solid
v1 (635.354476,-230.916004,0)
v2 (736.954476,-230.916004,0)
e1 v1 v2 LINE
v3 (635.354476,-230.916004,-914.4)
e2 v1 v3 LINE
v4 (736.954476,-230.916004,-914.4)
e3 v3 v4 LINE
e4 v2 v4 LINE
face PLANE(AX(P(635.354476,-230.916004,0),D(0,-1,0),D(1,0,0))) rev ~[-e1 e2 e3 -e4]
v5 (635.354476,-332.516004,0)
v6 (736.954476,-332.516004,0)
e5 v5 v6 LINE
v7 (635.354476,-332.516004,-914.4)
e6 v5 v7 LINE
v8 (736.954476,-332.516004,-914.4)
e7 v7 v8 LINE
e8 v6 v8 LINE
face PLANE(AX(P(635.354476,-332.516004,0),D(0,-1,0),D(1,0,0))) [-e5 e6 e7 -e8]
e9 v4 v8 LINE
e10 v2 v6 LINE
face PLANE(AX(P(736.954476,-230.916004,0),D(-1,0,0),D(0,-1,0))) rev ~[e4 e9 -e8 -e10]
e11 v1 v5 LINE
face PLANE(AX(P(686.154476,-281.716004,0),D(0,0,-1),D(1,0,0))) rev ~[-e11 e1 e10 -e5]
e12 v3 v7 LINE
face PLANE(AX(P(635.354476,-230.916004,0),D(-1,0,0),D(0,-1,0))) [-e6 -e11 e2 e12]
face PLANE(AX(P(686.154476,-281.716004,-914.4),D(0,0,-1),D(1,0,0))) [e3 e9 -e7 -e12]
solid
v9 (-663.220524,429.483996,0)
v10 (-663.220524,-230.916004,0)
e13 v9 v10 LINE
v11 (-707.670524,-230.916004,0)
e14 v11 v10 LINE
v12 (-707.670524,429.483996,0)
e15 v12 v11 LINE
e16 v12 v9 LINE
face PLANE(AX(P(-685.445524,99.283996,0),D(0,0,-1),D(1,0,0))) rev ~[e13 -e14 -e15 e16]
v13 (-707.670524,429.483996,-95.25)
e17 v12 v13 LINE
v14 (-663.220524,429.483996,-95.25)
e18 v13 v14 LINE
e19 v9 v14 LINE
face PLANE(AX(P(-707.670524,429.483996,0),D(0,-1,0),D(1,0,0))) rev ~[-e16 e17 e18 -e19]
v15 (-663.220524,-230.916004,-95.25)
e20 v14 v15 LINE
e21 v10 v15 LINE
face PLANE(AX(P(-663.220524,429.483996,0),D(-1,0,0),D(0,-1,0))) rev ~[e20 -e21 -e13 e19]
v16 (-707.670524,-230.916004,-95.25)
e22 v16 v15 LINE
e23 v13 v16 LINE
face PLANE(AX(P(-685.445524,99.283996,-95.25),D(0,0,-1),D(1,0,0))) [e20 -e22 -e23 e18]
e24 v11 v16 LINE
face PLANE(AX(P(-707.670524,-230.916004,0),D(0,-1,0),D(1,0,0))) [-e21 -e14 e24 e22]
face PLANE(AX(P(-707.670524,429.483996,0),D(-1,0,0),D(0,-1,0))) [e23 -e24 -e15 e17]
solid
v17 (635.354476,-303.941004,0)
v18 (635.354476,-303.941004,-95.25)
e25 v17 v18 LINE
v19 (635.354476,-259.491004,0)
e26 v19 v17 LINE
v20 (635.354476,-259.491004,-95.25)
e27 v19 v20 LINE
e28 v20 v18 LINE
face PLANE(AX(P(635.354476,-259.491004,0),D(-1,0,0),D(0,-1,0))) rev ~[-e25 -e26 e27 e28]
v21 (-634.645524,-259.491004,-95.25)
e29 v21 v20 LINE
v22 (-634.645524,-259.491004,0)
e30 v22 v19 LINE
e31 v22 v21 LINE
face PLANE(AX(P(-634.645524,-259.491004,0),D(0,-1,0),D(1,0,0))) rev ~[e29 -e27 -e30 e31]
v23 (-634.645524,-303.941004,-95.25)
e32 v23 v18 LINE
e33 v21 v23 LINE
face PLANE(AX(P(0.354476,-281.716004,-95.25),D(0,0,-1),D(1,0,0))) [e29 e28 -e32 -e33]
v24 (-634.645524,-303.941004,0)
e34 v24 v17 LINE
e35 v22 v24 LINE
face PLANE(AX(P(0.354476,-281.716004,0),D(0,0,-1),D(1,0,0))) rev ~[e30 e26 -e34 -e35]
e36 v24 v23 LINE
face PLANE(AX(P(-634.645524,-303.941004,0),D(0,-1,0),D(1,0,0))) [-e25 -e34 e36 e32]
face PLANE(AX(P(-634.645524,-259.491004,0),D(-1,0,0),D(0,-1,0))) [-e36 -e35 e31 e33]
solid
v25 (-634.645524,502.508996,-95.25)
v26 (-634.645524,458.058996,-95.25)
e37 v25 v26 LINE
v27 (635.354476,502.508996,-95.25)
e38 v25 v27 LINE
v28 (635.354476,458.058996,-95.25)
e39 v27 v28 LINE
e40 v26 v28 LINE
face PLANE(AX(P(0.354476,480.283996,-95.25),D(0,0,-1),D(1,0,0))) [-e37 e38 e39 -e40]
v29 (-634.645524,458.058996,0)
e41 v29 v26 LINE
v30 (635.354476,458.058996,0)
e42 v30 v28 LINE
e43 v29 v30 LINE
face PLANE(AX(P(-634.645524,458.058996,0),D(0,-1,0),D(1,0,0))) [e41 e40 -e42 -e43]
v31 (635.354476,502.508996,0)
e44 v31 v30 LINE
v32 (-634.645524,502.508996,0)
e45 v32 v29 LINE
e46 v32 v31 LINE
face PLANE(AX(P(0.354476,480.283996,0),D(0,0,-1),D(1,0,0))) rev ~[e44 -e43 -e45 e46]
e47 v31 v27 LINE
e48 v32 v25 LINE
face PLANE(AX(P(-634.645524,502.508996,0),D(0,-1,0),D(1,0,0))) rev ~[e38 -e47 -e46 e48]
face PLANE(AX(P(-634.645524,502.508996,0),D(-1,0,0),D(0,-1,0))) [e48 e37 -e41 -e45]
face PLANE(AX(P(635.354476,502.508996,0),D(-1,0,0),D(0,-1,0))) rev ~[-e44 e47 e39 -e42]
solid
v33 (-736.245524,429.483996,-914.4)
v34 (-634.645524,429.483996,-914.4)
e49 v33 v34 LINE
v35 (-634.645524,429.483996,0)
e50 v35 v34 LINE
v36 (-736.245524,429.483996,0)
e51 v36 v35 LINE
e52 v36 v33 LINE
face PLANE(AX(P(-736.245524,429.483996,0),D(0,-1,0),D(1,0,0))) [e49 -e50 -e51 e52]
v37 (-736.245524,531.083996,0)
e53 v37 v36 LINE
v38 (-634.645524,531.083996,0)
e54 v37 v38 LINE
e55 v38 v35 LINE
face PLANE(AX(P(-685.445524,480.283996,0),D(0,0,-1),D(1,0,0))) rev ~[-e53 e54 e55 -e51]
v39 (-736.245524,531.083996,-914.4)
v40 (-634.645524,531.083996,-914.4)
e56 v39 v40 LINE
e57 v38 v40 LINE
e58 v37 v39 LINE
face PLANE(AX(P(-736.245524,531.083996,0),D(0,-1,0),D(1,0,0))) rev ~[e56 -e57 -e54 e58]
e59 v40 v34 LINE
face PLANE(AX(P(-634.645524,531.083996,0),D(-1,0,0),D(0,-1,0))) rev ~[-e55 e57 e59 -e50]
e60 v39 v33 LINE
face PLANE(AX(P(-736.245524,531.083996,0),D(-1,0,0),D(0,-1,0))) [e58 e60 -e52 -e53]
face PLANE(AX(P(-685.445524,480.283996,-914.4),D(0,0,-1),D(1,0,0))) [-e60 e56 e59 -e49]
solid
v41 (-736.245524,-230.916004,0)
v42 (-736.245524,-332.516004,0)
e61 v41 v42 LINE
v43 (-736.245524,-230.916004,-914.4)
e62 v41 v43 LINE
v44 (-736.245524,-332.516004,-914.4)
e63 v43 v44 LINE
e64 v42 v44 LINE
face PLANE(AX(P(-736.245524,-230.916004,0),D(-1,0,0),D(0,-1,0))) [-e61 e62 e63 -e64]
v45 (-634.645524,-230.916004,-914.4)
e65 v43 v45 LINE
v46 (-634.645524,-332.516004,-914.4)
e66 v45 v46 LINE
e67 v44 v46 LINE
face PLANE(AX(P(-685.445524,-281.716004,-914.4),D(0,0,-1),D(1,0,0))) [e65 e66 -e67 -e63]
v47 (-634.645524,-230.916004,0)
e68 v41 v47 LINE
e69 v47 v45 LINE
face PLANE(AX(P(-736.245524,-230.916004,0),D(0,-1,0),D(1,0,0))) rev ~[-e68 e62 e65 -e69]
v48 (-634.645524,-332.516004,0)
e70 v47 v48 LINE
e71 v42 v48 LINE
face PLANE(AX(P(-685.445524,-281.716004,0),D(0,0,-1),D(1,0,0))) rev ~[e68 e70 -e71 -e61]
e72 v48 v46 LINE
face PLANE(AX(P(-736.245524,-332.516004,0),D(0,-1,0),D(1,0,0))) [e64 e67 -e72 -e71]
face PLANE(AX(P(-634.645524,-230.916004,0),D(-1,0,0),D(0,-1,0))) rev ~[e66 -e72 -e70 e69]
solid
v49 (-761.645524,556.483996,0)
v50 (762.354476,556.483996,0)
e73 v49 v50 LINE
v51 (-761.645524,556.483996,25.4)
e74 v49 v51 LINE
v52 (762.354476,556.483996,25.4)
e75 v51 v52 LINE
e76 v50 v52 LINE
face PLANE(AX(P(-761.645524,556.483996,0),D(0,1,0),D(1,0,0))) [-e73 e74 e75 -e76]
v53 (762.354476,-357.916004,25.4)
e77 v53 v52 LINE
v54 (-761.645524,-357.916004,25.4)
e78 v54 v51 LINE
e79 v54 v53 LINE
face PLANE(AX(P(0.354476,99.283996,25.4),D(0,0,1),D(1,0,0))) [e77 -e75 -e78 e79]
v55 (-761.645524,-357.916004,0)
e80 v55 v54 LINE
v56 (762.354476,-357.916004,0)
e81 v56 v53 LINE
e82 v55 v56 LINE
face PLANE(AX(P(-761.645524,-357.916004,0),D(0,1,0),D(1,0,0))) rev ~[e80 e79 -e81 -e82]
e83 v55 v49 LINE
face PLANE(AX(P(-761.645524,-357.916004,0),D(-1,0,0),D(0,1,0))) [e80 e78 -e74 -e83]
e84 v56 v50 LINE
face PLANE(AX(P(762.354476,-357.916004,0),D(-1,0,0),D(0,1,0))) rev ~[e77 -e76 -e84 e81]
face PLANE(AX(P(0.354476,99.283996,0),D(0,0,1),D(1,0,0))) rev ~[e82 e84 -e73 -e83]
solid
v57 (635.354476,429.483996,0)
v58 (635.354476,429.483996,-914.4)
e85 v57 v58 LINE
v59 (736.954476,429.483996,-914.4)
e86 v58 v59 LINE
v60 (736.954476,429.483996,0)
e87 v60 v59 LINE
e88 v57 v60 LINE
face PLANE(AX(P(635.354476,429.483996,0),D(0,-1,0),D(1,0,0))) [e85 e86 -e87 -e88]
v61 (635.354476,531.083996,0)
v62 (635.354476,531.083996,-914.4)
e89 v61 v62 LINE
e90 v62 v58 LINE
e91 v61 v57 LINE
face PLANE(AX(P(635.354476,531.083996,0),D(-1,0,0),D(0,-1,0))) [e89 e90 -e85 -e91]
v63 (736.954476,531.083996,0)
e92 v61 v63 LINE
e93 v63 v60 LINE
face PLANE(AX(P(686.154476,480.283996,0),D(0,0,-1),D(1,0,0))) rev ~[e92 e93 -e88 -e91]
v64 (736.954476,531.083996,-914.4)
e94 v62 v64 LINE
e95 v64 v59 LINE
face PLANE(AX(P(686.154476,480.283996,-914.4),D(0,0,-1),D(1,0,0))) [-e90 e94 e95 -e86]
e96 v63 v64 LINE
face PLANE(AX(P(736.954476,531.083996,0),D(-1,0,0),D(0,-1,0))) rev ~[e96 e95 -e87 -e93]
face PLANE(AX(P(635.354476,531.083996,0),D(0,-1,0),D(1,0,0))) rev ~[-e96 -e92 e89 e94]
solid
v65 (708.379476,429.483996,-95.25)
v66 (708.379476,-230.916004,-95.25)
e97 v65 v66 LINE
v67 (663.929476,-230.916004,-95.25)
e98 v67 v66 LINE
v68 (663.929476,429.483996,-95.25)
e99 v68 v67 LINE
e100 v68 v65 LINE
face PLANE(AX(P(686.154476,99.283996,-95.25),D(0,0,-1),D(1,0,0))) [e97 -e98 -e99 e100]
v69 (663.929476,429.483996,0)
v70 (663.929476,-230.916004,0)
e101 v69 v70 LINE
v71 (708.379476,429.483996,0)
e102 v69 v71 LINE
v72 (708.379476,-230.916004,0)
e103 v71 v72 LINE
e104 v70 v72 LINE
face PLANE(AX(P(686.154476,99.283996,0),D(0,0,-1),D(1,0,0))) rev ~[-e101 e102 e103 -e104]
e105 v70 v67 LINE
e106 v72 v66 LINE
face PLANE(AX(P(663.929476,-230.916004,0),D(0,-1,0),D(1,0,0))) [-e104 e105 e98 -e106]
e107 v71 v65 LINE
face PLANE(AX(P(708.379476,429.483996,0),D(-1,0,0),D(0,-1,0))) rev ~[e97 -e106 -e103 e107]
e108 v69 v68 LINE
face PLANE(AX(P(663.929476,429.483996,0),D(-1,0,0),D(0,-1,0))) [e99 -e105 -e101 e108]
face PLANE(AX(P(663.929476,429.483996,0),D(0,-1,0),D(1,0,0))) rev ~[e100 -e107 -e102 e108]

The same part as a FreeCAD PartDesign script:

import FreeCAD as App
import Part
import Sketcher
Q = App.Units.Quantity

doc = App.newDocument("Part")
body = doc.addObject("PartDesign::Body", "Body")

# Sketch on XY plane
sketch1 = body.newObject("Sketcher::SketchObject", "Sketch")
sketch1.AttachmentSupport = (doc.getObject("XY_Plane"), [""])
sketch1.MapMode = "FlatFace"
sketch1.addGeometry([
    Part.LineSegment(App.Vector(-762, 556, 0), App.Vector(-762, -358, 0)),
    Part.LineSegment(App.Vector(-762, -358, 0), App.Vector(762, -358, 0)),
    Part.LineSegment(App.Vector(762, -358, 0), App.Vector(762, 556, 0)),
    Part.LineSegment(App.Vector(762, 556, 0), App.Vector(-762, 556, 0)),
], False)
sketch1.addConstraint([
    Sketcher.Constraint("Coincident", 0, 2, 1, 1),
    Sketcher.Constraint("Coincident", 1, 2, 2, 1),
    Sketcher.Constraint("Coincident", 2, 2, 3, 1),
    Sketcher.Constraint("Coincident", 3, 2, 0, 1),
    Sketcher.Constraint("Vertical", 0),
    Sketcher.Constraint("Horizontal", 1),
    Sketcher.Constraint("Vertical", 2),
    Sketcher.Constraint("Horizontal", 3),
    Sketcher.Constraint("DistanceX", 1, 1, 1, 2, Q("60 in")),
    Sketcher.Constraint("DistanceY", 0, 2, 0, 1, Q("36 in")),
    Sketcher.Constraint("DistanceX", 0, 2, -1, 1, Q("761.645524 mm")),
    Sketcher.Constraint("DistanceY", 0, 2, -1, 1, Q("357.916004 mm")),
])
pad1 = body.newObject("PartDesign::Pad", "Pad")
pad1.Profile = sketch1
pad1.Length = Q("1 in")
body2 = doc.addObject("PartDesign::Body", "Body001")
body2.AllowCompound = True

# Sketch on XY plane
sketch2 = body2.newObject("Sketcher::SketchObject", "Sketch001")
sketch2.AttachmentSupport = (doc.getObject("XY_Plane001"), [""])
sketch2.MapMode = "FlatFace"
sketch2.addGeometry([
    Part.LineSegment(App.Vector(-736, -333, 0), App.Vector(-736, -231, 0)),  # 0
    Part.LineSegment(App.Vector(-736, -231, 0), App.Vector(-635, -231, 0)),  # 1
    Part.LineSegment(App.Vector(-635, -231, 0), App.Vector(-635, -333, 0)),  # 2
    Part.LineSegment(App.Vector(-635, -333, 0), App.Vector(-736, -333, 0)),  # 3
    Part.LineSegment(App.Vector(-736, 429, 0), App.Vector(-736, 531, 0)),  # 4
    Part.LineSegment(App.Vector(-736, 531, 0), App.Vector(-635, 531, 0)),  # 5
    Part.LineSegment(App.Vector(-635, 531, 0), App.Vector(-635, 429, 0)),  # 6
    Part.LineSegment(App.Vector(-635, 429, 0), App.Vector(-736, 429, 0)),  # 7
    Part.LineSegment(App.Vector(635, 429, 0), App.Vector(635, 531, 0)),  # 8
    Part.LineSegment(App.Vector(635, 531, 0), App.Vector(737, 531, 0)),  # 9
    Part.LineSegment(App.Vector(737, 531, 0), App.Vector(737, 429, 0)),  # 10
    Part.LineSegment(App.Vector(737, 429, 0), App.Vector(635, 429, 0)),  # 11
    Part.LineSegment(App.Vector(635, -333, 0), App.Vector(635, -231, 0)),  # 12
    Part.LineSegment(App.Vector(635, -231, 0), App.Vector(737, -231, 0)),  # 13
    Part.LineSegment(App.Vector(737, -231, 0), App.Vector(737, -333, 0)),  # 14
    Part.LineSegment(App.Vector(737, -333, 0), App.Vector(635, -333, 0)),  # 15
], False)
sketch2.addConstraint([
    Sketcher.Constraint("Coincident", 0, 2, 1, 1),
    Sketcher.Constraint("Coincident", 1, 2, 2, 1),
    Sketcher.Constraint("Coincident", 2, 2, 3, 1),
    Sketcher.Constraint("Coincident", 3, 2, 0, 1),
    Sketcher.Constraint("Coincident", 4, 2, 5, 1),
    Sketcher.Constraint("Coincident", 5, 2, 6, 1),
    Sketcher.Constraint("Coincident", 6, 2, 7, 1),
    Sketcher.Constraint("Coincident", 7, 2, 4, 1),
    Sketcher.Constraint("Coincident", 8, 2, 9, 1),
    Sketcher.Constraint("Coincident", 9, 2, 10, 1),
    Sketcher.Constraint("Coincident", 10, 2, 11, 1),
    Sketcher.Constraint("Coincident", 11, 2, 8, 1),
    Sketcher.Constraint("Coincident", 12, 2, 13, 1),
    Sketcher.Constraint("Coincident", 13, 2, 14, 1),
    Sketcher.Constraint("Coincident", 14, 2, 15, 1),
    Sketcher.Constraint("Coincident", 15, 2, 12, 1),
    Sketcher.Constraint("Vertical", 0),
    Sketcher.Constraint("Horizontal", 1),
    Sketcher.Constraint("Vertical", 2),
    Sketcher.Constraint("Horizontal", 3),
    Sketcher.Constraint("Vertical", 4),
    Sketcher.Constraint("Horizontal", 5),
    Sketcher.Constraint("Vertical", 6),
    Sketcher.Constraint("Horizontal", 7),
    Sketcher.Constraint("Vertical", 8),
    Sketcher.Constraint("Horizontal", 9),
    Sketcher.Constraint("Vertical", 10),
    Sketcher.Constraint("Horizontal", 11),
    Sketcher.Constraint("Vertical", 12),
    Sketcher.Constraint("Horizontal", 13),
    Sketcher.Constraint("Vertical", 14),
    Sketcher.Constraint("Horizontal", 15),
    Sketcher.Constraint("Horizontal", 5, 2, 8, 2),
    Sketcher.Constraint("Horizontal", 7, 2, 10, 2),
    Sketcher.Constraint("Horizontal", 1, 2, 12, 2),
    Sketcher.Constraint("Horizontal", 3, 2, 14, 2),
    Sketcher.Constraint("Vertical", 3, 2, 4, 2),
    Sketcher.Constraint("Vertical", 2, 2, 5, 2),
    Sketcher.Constraint("Vertical", 11, 2, 12, 2),
    Sketcher.Constraint("Vertical", 10, 2, 13, 2),
    Sketcher.Constraint("Equal", 7, 9),
    Sketcher.Constraint("Equal", 15, 0),
    Sketcher.Constraint("Equal", 2, 4),
    Sketcher.Constraint("DistanceX", 1, 1, 1, 2, Q("4 in")),
    Sketcher.Constraint("DistanceY", 0, 2, 4, 2, Q("30 in")),
    Sketcher.Constraint("DistanceX", 5, 2, 8, 2, Q("50 in")),
    Sketcher.Constraint("DistanceX", 0, 2, -1, 1, Q("736.245524 mm")),
    Sketcher.Constraint("DistanceY", 0, 2, -1, 1, Q("230.916004 mm")),
])
pad2 = body2.newObject("PartDesign::Pad", "Pad001")
pad2.Profile = sketch2
pad2.Length = Q("36 in")
pad2.Reversed = True
body3 = doc.addObject("PartDesign::Body", "Body002")
body3.AllowCompound = True

# Sketch on XY plane
sketch3 = body3.newObject("Sketcher::SketchObject", "Sketch002")
sketch3.AttachmentSupport = (doc.getObject("XY_Plane002"), [""])
sketch3.MapMode = "FlatFace"
sketch3.addGeometry([
    Part.LineSegment(App.Vector(-635, -304, 0), App.Vector(-635, -259, 0)),  # 0
    Part.LineSegment(App.Vector(-635, -259, 0), App.Vector(635, -259, 0)),  # 1
    Part.LineSegment(App.Vector(635, -259, 0), App.Vector(635, -304, 0)),  # 2
    Part.LineSegment(App.Vector(635, -304, 0), App.Vector(-635, -304, 0)),  # 3
    Part.LineSegment(App.Vector(664, -231, 0), App.Vector(664, 429, 0)),  # 4
    Part.LineSegment(App.Vector(664, 429, 0), App.Vector(708, 429, 0)),  # 5
    Part.LineSegment(App.Vector(708, 429, 0), App.Vector(708, -231, 0)),  # 6
    Part.LineSegment(App.Vector(708, -231, 0), App.Vector(664, -231, 0)),  # 7
    Part.LineSegment(App.Vector(-635, 458, 0), App.Vector(-635, 503, 0)),  # 8
    Part.LineSegment(App.Vector(-635, 503, 0), App.Vector(635, 503, 0)),  # 9
    Part.LineSegment(App.Vector(635, 503, 0), App.Vector(635, 458, 0)),  # 10
    Part.LineSegment(App.Vector(635, 458, 0), App.Vector(-635, 458, 0)),  # 11
    Part.LineSegment(App.Vector(-708, -231, 0), App.Vector(-708, 429, 0)),  # 12
    Part.LineSegment(App.Vector(-708, 429, 0), App.Vector(-663, 429, 0)),  # 13
    Part.LineSegment(App.Vector(-663, 429, 0), App.Vector(-663, -231, 0)),  # 14
    Part.LineSegment(App.Vector(-663, -231, 0), App.Vector(-708, -231, 0)),  # 15
], False)
sketch3.addConstraint([
    Sketcher.Constraint("Coincident", 0, 2, 1, 1),
    Sketcher.Constraint("Coincident", 1, 2, 2, 1),
    Sketcher.Constraint("Coincident", 2, 2, 3, 1),
    Sketcher.Constraint("Coincident", 3, 2, 0, 1),
    Sketcher.Constraint("Coincident", 4, 2, 5, 1),
    Sketcher.Constraint("Coincident", 5, 2, 6, 1),
    Sketcher.Constraint("Coincident", 6, 2, 7, 1),
    Sketcher.Constraint("Coincident", 7, 2, 4, 1),
    Sketcher.Constraint("Coincident", 8, 2, 9, 1),
    Sketcher.Constraint("Coincident", 9, 2, 10, 1),
    Sketcher.Constraint("Coincident", 10, 2, 11, 1),
    Sketcher.Constraint("Coincident", 11, 2, 8, 1),
    Sketcher.Constraint("Coincident", 12, 2, 13, 1),
    Sketcher.Constraint("Coincident", 13, 2, 14, 1),
    Sketcher.Constraint("Coincident", 14, 2, 15, 1),
    Sketcher.Constraint("Coincident", 15, 2, 12, 1),
    Sketcher.Constraint("Vertical", 0),
    Sketcher.Constraint("Horizontal", 1),
    Sketcher.Constraint("Vertical", 2),
    Sketcher.Constraint("Horizontal", 3),
    Sketcher.Constraint("Vertical", 4),
    Sketcher.Constraint("Horizontal", 5),
    Sketcher.Constraint("Vertical", 6),
    Sketcher.Constraint("Horizontal", 7),
    Sketcher.Constraint("Vertical", 8),
    Sketcher.Constraint("Horizontal", 9),
    Sketcher.Constraint("Vertical", 10),
    Sketcher.Constraint("Horizontal", 11),
    Sketcher.Constraint("Vertical", 12),
    Sketcher.Constraint("Horizontal", 13),
    Sketcher.Constraint("Vertical", 14),
    Sketcher.Constraint("Horizontal", 15),
    Sketcher.Constraint("Horizontal", 5, 2, 12, 2),
    Sketcher.Constraint("Horizontal", 7, 2, 14, 2),
    Sketcher.Constraint("Vertical", 3, 2, 8, 2),
    Sketcher.Constraint("Vertical", 2, 2, 9, 2),
    Sketcher.Constraint("Equal", 7, 13),
    Sketcher.Constraint("Equal", 15, 0),
    Sketcher.Constraint("Equal", 2, 8),
    Sketcher.Constraint("DistanceX", 1, 1, 1, 2, Q("50 in")),
    Sketcher.Constraint("DistanceY", 4, 1, 4, 2, Q("26 in")),
    Sketcher.Constraint("DistanceY", 0, 2, 8, 2, Q("30 in")),
    Sketcher.Constraint("DistanceX", 5, 1, 5, 2, Q("1.75 in")),
    Sketcher.Constraint("DistanceX", 1, 2, 4, 2, Q("1.125 in")),
    Sketcher.Constraint("DistanceY", 1, 2, 4, 2, Q("27.125 in")),
    Sketcher.Constraint("DistanceX", 12, 2, 11, 2, Q("2.875 in")),
    Sketcher.Constraint("DistanceX", 0, 2, -1, 1, Q("634.645524 mm")),
    Sketcher.Constraint("DistanceY", 0, 2, -1, 1, Q("259.491004 mm")),
])
pad3 = body3.newObject("PartDesign::Pad", "Pad002")
pad3.Profile = sketch3
pad3.Length = Q("3.75 in")
pad3.Reversed = True

doc.recompute()
